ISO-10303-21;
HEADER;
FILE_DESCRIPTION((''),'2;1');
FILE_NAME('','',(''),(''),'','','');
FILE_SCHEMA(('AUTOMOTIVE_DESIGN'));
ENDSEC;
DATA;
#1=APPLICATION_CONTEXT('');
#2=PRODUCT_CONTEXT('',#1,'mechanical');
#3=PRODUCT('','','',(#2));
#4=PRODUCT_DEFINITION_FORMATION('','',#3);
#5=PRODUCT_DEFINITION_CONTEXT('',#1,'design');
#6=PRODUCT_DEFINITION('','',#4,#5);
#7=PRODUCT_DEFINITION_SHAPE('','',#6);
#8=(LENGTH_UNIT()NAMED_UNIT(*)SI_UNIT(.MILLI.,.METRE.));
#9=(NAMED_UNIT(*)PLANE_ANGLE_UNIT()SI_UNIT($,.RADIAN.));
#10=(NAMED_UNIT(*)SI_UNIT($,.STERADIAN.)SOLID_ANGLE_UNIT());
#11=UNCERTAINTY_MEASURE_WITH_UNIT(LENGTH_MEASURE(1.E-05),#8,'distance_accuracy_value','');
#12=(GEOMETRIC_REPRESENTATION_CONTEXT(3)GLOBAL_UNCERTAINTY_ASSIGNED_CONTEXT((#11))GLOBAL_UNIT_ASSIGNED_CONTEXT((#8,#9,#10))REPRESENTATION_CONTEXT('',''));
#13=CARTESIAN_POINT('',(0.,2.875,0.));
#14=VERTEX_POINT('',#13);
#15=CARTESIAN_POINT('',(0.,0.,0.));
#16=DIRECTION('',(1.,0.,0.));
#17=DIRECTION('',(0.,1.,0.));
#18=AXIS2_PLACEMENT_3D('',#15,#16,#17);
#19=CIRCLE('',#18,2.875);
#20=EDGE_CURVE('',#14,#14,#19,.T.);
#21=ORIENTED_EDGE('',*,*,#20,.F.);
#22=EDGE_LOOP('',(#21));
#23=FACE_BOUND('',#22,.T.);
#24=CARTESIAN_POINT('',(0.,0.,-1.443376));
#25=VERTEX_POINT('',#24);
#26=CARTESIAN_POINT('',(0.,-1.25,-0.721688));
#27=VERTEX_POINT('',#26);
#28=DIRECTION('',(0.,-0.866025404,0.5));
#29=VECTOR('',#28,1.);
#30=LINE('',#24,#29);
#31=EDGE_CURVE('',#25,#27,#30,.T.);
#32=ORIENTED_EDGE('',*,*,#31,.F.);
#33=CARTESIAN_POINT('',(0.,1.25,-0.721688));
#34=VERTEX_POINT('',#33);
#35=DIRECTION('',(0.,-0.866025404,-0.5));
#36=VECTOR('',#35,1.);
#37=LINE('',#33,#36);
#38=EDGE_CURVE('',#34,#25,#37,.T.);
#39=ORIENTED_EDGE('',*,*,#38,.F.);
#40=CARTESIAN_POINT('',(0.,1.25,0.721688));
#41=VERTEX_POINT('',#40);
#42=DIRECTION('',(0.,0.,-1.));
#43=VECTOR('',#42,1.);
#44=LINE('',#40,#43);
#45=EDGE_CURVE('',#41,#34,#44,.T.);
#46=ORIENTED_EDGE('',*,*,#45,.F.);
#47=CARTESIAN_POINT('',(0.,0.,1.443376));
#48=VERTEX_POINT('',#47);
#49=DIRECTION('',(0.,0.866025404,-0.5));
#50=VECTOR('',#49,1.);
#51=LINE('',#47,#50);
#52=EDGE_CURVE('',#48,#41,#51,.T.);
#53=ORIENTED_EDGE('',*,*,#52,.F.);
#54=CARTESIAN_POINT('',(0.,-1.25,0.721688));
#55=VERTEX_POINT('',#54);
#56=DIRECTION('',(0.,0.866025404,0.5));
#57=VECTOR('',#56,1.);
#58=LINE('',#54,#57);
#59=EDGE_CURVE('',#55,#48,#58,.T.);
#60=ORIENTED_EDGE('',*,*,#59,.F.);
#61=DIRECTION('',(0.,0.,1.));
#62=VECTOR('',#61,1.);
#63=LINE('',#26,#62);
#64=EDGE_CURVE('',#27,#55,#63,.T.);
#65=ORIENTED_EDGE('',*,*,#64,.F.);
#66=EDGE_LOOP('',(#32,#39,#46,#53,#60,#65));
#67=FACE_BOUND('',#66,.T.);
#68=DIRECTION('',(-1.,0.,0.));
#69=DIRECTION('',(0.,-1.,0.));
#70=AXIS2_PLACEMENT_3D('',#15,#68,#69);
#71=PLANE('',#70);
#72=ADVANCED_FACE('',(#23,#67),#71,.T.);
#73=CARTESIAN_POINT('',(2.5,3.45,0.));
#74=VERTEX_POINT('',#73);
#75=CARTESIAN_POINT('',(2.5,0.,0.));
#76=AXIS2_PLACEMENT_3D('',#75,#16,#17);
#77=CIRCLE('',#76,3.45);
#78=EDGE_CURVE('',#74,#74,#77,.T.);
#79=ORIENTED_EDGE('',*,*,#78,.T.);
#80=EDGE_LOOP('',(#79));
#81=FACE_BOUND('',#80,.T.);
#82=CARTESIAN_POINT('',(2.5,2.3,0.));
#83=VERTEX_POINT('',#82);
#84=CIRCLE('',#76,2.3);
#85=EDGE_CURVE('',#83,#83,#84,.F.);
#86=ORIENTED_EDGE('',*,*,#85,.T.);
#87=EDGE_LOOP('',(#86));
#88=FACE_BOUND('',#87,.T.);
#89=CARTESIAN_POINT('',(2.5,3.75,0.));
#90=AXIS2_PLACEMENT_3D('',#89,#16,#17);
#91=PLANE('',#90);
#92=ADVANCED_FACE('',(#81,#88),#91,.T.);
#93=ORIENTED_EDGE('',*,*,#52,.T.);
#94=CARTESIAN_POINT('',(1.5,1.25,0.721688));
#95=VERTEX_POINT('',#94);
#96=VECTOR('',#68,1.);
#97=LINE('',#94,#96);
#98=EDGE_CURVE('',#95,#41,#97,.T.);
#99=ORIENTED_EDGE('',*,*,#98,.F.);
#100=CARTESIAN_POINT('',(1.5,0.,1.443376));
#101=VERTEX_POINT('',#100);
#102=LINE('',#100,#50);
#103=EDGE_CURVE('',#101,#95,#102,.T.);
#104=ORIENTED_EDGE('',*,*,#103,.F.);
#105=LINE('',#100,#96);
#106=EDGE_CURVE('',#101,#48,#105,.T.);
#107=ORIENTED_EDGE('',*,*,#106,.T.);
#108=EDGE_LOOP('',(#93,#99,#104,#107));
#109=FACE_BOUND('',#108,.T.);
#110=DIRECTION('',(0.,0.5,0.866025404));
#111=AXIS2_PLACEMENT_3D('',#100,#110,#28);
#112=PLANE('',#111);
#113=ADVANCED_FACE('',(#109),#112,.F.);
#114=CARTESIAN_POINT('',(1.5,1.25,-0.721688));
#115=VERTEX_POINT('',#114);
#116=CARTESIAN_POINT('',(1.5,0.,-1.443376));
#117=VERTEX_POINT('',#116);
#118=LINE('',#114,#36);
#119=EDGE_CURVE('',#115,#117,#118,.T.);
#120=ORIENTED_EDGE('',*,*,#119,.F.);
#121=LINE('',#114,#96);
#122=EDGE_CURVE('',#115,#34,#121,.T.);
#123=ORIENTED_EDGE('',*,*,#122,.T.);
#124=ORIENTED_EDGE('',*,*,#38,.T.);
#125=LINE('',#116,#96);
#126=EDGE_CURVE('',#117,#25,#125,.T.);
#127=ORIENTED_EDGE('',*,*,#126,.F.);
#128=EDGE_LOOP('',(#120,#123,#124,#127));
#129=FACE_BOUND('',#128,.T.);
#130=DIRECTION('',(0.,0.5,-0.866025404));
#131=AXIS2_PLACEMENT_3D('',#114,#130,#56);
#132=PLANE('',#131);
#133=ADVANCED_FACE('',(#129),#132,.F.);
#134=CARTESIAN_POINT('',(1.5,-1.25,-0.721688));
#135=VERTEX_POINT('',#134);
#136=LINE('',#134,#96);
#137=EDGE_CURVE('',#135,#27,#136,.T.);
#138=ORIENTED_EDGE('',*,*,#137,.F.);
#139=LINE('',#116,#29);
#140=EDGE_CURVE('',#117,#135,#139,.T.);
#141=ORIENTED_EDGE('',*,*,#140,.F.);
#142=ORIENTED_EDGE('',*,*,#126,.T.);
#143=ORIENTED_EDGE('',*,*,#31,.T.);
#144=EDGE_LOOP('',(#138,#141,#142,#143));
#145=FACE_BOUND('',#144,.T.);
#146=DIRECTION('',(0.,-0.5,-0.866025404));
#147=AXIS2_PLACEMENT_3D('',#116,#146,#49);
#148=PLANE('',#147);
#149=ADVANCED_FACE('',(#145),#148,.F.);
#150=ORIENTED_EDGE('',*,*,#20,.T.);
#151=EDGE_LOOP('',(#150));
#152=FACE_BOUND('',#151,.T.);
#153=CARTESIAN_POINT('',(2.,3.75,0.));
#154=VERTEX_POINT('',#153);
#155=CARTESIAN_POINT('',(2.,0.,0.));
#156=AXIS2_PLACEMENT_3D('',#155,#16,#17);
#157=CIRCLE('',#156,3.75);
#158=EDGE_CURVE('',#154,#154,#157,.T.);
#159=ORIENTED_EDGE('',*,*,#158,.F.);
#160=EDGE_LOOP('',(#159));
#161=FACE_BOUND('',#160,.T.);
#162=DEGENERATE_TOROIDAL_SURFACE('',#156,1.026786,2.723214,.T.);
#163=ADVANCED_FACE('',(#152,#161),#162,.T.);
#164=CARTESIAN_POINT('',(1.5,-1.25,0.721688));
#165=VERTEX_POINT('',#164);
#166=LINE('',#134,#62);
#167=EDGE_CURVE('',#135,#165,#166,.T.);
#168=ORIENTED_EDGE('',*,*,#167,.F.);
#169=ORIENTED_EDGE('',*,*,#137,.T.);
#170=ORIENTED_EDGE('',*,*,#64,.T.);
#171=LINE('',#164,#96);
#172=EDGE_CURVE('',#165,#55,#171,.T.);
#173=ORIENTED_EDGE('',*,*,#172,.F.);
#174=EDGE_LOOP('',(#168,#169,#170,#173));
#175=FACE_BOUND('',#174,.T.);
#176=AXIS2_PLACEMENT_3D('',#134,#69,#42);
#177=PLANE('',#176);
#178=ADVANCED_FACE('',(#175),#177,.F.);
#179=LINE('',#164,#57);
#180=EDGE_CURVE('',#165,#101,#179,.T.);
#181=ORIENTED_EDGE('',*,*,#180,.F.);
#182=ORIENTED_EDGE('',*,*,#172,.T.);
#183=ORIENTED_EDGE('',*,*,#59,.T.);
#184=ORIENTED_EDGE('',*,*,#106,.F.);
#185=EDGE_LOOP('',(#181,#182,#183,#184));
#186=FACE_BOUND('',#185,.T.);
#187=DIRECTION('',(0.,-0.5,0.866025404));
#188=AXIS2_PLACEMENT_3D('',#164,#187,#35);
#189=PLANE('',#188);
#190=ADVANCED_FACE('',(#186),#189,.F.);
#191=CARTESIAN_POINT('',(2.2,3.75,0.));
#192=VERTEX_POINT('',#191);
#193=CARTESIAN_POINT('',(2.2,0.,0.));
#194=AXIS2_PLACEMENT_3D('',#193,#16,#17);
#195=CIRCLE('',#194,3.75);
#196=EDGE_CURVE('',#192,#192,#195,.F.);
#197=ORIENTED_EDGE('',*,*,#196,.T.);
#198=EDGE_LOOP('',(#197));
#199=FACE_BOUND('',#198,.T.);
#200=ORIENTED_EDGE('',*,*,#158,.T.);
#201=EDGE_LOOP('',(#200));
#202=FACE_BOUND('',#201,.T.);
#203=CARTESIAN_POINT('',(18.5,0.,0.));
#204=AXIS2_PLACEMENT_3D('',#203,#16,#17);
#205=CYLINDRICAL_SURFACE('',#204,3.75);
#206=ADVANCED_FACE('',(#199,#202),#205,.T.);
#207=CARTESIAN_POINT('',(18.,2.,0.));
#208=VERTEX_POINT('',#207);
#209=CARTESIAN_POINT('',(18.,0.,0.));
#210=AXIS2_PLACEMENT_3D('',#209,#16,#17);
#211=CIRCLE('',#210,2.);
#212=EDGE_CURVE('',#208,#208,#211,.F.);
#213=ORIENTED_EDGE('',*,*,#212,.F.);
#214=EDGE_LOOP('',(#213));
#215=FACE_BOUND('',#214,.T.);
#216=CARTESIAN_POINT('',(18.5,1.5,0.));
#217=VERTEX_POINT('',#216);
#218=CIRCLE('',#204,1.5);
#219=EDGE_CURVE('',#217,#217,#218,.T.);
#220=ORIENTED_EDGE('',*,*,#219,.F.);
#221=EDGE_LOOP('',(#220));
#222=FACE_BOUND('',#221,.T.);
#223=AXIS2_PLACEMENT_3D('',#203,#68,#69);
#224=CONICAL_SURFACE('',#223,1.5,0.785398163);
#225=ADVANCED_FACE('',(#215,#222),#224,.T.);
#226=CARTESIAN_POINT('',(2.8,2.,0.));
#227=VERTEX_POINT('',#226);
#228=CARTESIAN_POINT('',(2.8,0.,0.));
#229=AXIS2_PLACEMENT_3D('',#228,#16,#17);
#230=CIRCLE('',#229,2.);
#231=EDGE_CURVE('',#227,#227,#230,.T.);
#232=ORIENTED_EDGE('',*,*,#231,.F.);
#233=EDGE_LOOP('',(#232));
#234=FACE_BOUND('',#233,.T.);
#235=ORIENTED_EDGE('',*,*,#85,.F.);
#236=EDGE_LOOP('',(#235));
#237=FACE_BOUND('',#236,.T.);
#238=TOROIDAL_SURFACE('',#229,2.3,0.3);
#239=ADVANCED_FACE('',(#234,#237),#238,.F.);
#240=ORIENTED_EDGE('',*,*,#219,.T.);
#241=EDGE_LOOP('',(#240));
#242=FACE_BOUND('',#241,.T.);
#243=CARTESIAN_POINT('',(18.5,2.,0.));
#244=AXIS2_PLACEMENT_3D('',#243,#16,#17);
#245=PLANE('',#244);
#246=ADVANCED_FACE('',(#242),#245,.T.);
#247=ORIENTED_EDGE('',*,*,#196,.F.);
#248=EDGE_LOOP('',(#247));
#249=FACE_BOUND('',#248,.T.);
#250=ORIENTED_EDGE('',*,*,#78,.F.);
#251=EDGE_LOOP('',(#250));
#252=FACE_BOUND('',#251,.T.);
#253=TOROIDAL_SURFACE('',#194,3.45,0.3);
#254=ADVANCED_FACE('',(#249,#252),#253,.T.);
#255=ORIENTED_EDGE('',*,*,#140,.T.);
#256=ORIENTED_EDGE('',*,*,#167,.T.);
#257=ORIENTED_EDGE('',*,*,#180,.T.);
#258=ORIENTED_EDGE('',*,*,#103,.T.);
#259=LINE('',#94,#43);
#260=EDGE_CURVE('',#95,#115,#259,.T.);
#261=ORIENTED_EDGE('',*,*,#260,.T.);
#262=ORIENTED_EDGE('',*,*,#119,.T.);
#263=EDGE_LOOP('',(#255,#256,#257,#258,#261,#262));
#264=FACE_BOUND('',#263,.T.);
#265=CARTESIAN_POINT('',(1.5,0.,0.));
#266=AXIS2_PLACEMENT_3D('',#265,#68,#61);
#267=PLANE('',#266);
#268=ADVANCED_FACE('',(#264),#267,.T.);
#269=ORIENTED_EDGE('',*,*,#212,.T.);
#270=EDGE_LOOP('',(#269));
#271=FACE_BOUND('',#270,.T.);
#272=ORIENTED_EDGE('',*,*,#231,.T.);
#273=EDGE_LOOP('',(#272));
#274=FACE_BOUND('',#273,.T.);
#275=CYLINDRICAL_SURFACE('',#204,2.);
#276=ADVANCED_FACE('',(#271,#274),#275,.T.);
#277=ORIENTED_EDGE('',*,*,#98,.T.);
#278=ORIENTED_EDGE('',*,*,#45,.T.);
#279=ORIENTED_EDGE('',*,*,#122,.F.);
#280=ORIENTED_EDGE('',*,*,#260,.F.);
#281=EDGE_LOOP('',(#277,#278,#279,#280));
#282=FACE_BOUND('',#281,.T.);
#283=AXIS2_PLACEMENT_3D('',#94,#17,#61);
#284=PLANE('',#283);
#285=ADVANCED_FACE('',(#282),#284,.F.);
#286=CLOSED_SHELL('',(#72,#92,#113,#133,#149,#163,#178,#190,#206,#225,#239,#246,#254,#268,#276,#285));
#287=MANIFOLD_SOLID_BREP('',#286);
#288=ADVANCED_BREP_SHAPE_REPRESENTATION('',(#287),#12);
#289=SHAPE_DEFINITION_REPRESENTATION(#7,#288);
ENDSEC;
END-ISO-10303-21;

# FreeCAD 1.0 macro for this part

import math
import FreeCAD as App
import Part
import Sketcher

V = App.Vector
Q = App.Units.Quantity


def edges_at(feature, points):
    """Names of the edges that pass closest to the given points."""
    edges = feature.Shape.Edges
    near = lambda p: min(range(len(edges)), key=lambda i: edges[i].distToShape(Part.Vertex(*p))[0])
    return sorted({f"Edge{near(p) + 1}" for p in points})

doc = App.newDocument("Part")
params = doc.addObject("Spreadsheet::Sheet", "Params")
for row, (alias, value) in enumerate([
    ("sketch1_width", "16 mm"),
    ("sketch1_height", "2 mm"),
    ("sketch1_width2", "18.5 mm"),
    ("sketch1_width3", "0.5 mm"),
    ("sketch1_height2", "1.75 mm"),
    ("revolution_angle", "360 deg"),
    ("pocket1_length", "1.5 mm"),
    ("fillet_radius", "0.3 mm"),
    ("chamfer_size", "0.5 mm"),
], start=1):
    params.set(f"A{row}", alias)
    params.set(f"B{row}", "=" + value)
    params.setAlias(f"B{row}", alias)

body = doc.addObject("PartDesign::Body", "Body")

# Sketch on XY plane
sketch1 = doc.addObject("Sketcher::SketchObject", "Sketch")
body.addObject(sketch1)
sketch1.AttachmentSupport = (doc.XY_Plane, [""])
sketch1.MapMode = "FlatFace"
sketch1.addGeometry(Part.LineSegment(V(0, 2.9, 0), V(0, 0, 0)), False)
sketch1.addGeometry(Part.LineSegment(V(0, 0, 0), V(18.5, 0, 0)), False)
sketch1.addGeometry(Part.LineSegment(V(18.5, 0, 0), V(18.5, 2, 0)), False)
sketch1.addGeometry(Part.LineSegment(V(18.5, 2, 0), V(2.5, 2, 0)), False)
sketch1.addGeometry(Part.LineSegment(V(2.5, 2, 0), V(2.5, 3.8, 0)), False)
sketch1.addGeometry(Part.LineSegment(V(2.5, 3.8, 0), V(2, 3.8, 0)), False)
sketch1.addGeometry(Part.ArcOfCircle(Part.Circle(V(2, 1, 0), V(0, 0, 1), 2.7), math.radians(90), math.radians(137)), False)
sketch1.addConstraint(Sketcher.Constraint("Coincident", 0, 2, 1, 1))
sketch1.addConstraint(Sketcher.Constraint("Coincident", 1, 2, 2, 1))
sketch1.addConstraint(Sketcher.Constraint("Coincident", 2, 2, 3, 1))
sketch1.addConstraint(Sketcher.Constraint("Coincident", 3, 2, 4, 1))
sketch1.addConstraint(Sketcher.Constraint("Coincident", 4, 2, 5, 1))
sketch1.addConstraint(Sketcher.Constraint("Tangent", 5, 2, 6, 1))
sketch1.addConstraint(Sketcher.Constraint("Coincident", 6, 2, 0, 1))
sketch1.addConstraint(Sketcher.Constraint("Vertical", 0))
sketch1.addConstraint(Sketcher.Constraint("Horizontal", 1))
sketch1.addConstraint(Sketcher.Constraint("Vertical", 2))
sketch1.addConstraint(Sketcher.Constraint("Horizontal", 3))
sketch1.addConstraint(Sketcher.Constraint("Vertical", 4))
sketch1.addConstraint(Sketcher.Constraint("Horizontal", 5))
sketch1.addConstraint(Sketcher.Constraint("Coincident", 0, 2, -1, 1))
sketch1.addConstraint(Sketcher.Constraint("DistanceX", 3, 2, 3, 1, Q("16 mm")))
sketch1.addConstraint(Sketcher.Constraint("DistanceY", 2, 1, 2, 2, Q("2 mm")))
sketch1.addConstraint(Sketcher.Constraint("DistanceX", 1, 1, 1, 2, Q("18.5 mm")))
sketch1.addConstraint(Sketcher.Constraint("DistanceX", 5, 2, 5, 1, Q("0.5 mm")))
sketch1.addConstraint(Sketcher.Constraint("DistanceY", 4, 1, 4, 2, Q("1.75 mm")))
sketch1.addConstraint(Sketcher.Constraint("DistanceY", 0, 2, 0, 1, Q("2.875 mm")))
sketch1.setExpression("Constraints[14]", "Params.sketch1_width")
sketch1.setExpression("Constraints[15]", "Params.sketch1_height")
sketch1.setExpression("Constraints[16]", "Params.sketch1_width2")
sketch1.setExpression("Constraints[17]", "Params.sketch1_width3")
sketch1.setExpression("Constraints[18]", "Params.sketch1_height2")
revolution = doc.addObject("PartDesign::Revolution", "Revolution")
body.addObject(revolution)
revolution.Profile = sketch1
revolution.ReferenceAxis = (sketch1, ["H_Axis"])
revolution.setExpression("Angle", "Params.revolution_angle")

# Sketch on YZ plane
sketch2 = doc.addObject("Sketcher::SketchObject", "Sketch001")
body.addObject(sketch2)
sketch2.AttachmentSupport = (doc.YZ_Plane, [""])
sketch2.MapMode = "FlatFace"
sketch2.addGeometry(Part.LineSegment(V(1.2, 0.7, 0), V(1.2, -0.7, 0)), False)
sketch2.addGeometry(Part.LineSegment(V(1.2, -0.7, 0), V(0, -1.4, 0)), False)
sketch2.addGeometry(Part.LineSegment(V(0, -1.4, 0), V(-1.2, -0.7, 0)), False)
sketch2.addGeometry(Part.LineSegment(V(-1.2, -0.7, 0), V(-1.2, 0.7, 0)), False)
sketch2.addGeometry(Part.LineSegment(V(-1.2, 0.7, 0), V(0, 1.4, 0)), False)
sketch2.addGeometry(Part.LineSegment(V(0, 1.4, 0), V(1.2, 0.7, 0)), False)
sketch2.addConstraint(Sketcher.Constraint("Coincident", 0, 2, 1, 1))
sketch2.addConstraint(Sketcher.Constraint("Coincident", 1, 2, 2, 1))
sketch2.addConstraint(Sketcher.Constraint("Coincident", 2, 2, 3, 1))
sketch2.addConstraint(Sketcher.Constraint("Coincident", 3, 2, 4, 1))
sketch2.addConstraint(Sketcher.Constraint("Coincident", 4, 2, 5, 1))
sketch2.addConstraint(Sketcher.Constraint("Coincident", 5, 2, 0, 1))
sketch2.addConstraint(Sketcher.Constraint("Vertical", 0))
sketch2.addConstraint(Sketcher.Constraint("Vertical", 3))
sketch2.addConstraint(Sketcher.Constraint("Symmetric", 0, 2, 3, 2, -1, 1))
sketch2.addConstraint(Sketcher.Constraint("Symmetric", 1, 2, 4, 2, -1, 1))
sketch2.addConstraint(Sketcher.Constraint("PointOnObject", 1, 2, -2))
sketch2.addConstraint(Sketcher.Constraint("Parallel", 2, 5))
sketch2.addConstraint(Sketcher.Constraint("Horizontal", 0, 2, 2, 2))
sketch2.addConstraint(Sketcher.Constraint("Angle", 1, Q("-150 deg")))
sketch2.addConstraint(Sketcher.Constraint("DistanceX", 2, 2, 0, 2, Q("2.5 mm")))
sketch2.addConstraint(Sketcher.Constraint("DistanceY", 0, 2, 0, 1, Q("1.443376 mm")))
pocket1 = doc.addObject("PartDesign::Pocket", "Pocket")
body.addObject(pocket1)
pocket1.Profile = sketch2
pocket1.setExpression("Length", "Params.pocket1_length")
pocket1.Reversed = True
doc.recompute()

fillet = doc.addObject("PartDesign::Fillet", "Fillet")
body.addObject(fillet)
fillet.Base = (pocket1, edges_at(pocket1, [(2.5, -2, 0), (2.5, -3.75, 0)]))
fillet.setExpression("Radius", "Params.fillet_radius")
doc.recompute()

chamfer = doc.addObject("PartDesign::Chamfer", "Chamfer")
body.addObject(chamfer)
chamfer.Base = (fillet, edges_at(fillet, [(18.5, -2, 0)]))
chamfer.setExpression("Size", "Params.chamfer_size")

doc.recompute()
